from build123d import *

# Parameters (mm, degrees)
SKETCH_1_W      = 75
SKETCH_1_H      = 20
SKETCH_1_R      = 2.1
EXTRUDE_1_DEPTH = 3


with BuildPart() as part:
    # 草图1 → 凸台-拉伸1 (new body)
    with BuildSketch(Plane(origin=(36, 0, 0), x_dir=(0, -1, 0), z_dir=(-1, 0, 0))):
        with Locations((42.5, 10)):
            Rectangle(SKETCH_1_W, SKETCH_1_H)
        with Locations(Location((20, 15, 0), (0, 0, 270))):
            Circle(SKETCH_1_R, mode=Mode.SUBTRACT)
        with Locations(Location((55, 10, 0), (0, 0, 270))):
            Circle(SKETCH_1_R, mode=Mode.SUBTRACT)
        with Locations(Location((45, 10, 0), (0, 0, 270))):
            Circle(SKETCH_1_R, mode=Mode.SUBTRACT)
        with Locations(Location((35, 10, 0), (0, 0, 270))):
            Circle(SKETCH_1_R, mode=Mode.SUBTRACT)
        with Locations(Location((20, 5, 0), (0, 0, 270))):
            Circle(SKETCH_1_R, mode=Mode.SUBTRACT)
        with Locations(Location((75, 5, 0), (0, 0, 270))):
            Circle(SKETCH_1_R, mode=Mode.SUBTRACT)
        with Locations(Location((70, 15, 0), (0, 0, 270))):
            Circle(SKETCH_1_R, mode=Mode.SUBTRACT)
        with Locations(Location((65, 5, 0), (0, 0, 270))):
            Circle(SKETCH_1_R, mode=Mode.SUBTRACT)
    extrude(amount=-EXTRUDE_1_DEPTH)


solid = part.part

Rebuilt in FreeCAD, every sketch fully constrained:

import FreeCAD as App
import Part
import Sketcher
from FreeCAD import Vector


def add_polygon(sketch, points):
    """Adds a closed chain of lines whose ends are joined by coincident constraints."""
    first, n = sketch.GeometryCount, len(points)
    for a, b in zip(points, points[1:] + points[:1]):
        sketch.addGeometry(Part.LineSegment(App.Vector(*a, 0), App.Vector(*b, 0)), False)
    for i in range(n):
        sketch.addConstraint(Sketcher.Constraint("Coincident", first + i, 2, first + (i + 1) % n, 1))

doc = App.newDocument("Part")
params = doc.addObject("Spreadsheet::Sheet", "Params")
for row, (alias, value) in enumerate([
    ("sketch1_diameter", "4.2 mm"),
    ("sketch1_width", "75 mm"),
    ("sketch1_height", "20 mm"),
    ("pad1_length", "3 mm"),
], start=1):
    params.set(f"A{row}", alias)
    params.set(f"B{row}", "=" + value)
    params.setAlias(f"B{row}", alias)

body = doc.addObject("PartDesign::Body", "Body")

sketch1 = doc.addObject("Sketcher::SketchObject", "Sketch")
body.addObject(sketch1)
sketch1.AttachmentSupport = (doc.YZ_Plane, [""])
sketch1.MapMode = "FlatFace"
sketch1.AttachmentOffset = App.Placement(Vector(0, 0, 36), App.Rotation())
add_polygon(sketch1, [(-5, 20), (-5, 0), (-80, 0), (-80, 20)])
sketch1.addGeometry(Part.Circle(Vector(-20, 5, 0), Vector(0, 0, 1), 2.1), False)
sketch1.addGeometry(Part.Circle(Vector(-65, 5, 0), Vector(0, 0, 1), 2.1), False)
sketch1.addGeometry(Part.Circle(Vector(-75, 5, 0), Vector(0, 0, 1), 2.1), False)
sketch1.addGeometry(Part.Circle(Vector(-35, 10, 0), Vector(0, 0, 1), 2.1), False)
sketch1.addGeometry(Part.Circle(Vector(-45, 10, 0), Vector(0, 0, 1), 2.1), False)
sketch1.addGeometry(Part.Circle(Vector(-20, 15, 0), Vector(0, 0, 1), 2.1), False)
sketch1.addGeometry(Part.Circle(Vector(-55, 10, 0), Vector(0, 0, 1), 2.1), False)
sketch1.addGeometry(Part.Circle(Vector(-70, 15, 0), Vector(0, 0, 1), 2.1), False)
sketch1.addConstraint([
    Sketcher.Constraint("Vertical", 0),
    Sketcher.Constraint("Horizontal", 1),
    Sketcher.Constraint("Vertical", 2),
    Sketcher.Constraint("Horizontal", 3),
    Sketcher.Constraint("Equal", 4, 5),
    Sketcher.Constraint("Equal", 5, 6),
    Sketcher.Constraint("Equal", 6, 7),
    Sketcher.Constraint("Equal", 7, 8),
    Sketcher.Constraint("Equal", 8, 9),
    Sketcher.Constraint("Equal", 9, 10),
    Sketcher.Constraint("Equal", 10, 11),
    Sketcher.Constraint("PointOnObject", 0, 2, -1),
    Sketcher.Constraint("Horizontal", 4, 3, 5, 3),
    Sketcher.Constraint("Horizontal", 5, 3, 6, 3),
    Sketcher.Constraint("Horizontal", 7, 3, 8, 3),
    Sketcher.Constraint("Horizontal", 8, 3, 10, 3),
    Sketcher.Constraint("Horizontal", 9, 3, 11, 3),
    Sketcher.Constraint("Vertical", 4, 3, 9, 3),
    Sketcher.Constraint("Diameter", 4, 4.2),
    Sketcher.Constraint("DistanceX", 1, 2, 1, 1, 75.0),
    Sketcher.Constraint("DistanceY", 0, 2, 0, 1, 20.0),
    Sketcher.Constraint("DistanceX", 4, 3, -1, 1, 20.0),
    Sketcher.Constraint("DistanceY", -1, 1, 4, 3, 5.0),
    Sketcher.Constraint("DistanceX", 5, 3, -1, 1, 65.0),
    Sketcher.Constraint("DistanceX", 6, 3, -1, 1, 75.0),
    Sketcher.Constraint("DistanceX", 7, 3, -1, 1, 35.0),
    Sketcher.Constraint("DistanceY", -1, 1, 7, 3, 10.0),
    Sketcher.Constraint("DistanceX", 8, 3, -1, 1, 45.0),
    Sketcher.Constraint("DistanceY", -1, 1, 9, 3, 15.0),
    Sketcher.Constraint("DistanceX", 10, 3, -1, 1, 55.0),
    Sketcher.Constraint("DistanceX", 11, 3, -1, 1, 70.0),
    Sketcher.Constraint("DistanceX", 0, 2, -1, 1, 5.0),
])
sketch1.setExpression("Constraints[22]", "Params.sketch1_diameter")
sketch1.setExpression("Constraints[23]", "Params.sketch1_width")
sketch1.setExpression("Constraints[24]", "Params.sketch1_height")
pad1 = doc.addObject("PartDesign::Pad", "Pad")
body.addObject(pad1)
pad1.Profile = sketch1
pad1.setExpression("Length", "Params.pad1_length")

doc.recompute()
